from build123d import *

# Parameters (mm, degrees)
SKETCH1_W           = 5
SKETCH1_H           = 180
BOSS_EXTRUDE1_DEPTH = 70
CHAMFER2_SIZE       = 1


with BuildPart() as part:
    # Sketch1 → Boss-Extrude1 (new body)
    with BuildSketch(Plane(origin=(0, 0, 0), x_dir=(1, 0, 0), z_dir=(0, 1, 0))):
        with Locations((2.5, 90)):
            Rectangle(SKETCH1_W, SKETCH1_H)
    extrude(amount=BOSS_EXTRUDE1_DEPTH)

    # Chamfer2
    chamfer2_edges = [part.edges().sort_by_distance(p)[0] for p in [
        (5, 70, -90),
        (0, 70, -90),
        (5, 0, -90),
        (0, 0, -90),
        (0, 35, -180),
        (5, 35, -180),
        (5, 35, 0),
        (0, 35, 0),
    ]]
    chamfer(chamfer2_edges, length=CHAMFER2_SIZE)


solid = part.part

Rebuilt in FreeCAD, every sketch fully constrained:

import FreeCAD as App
import Part
import Sketcher
Q = App.Units.Quantity


def edges_at(feature, points):
    """Names of the edges that pass closest to the given points."""
    edges = feature.Shape.Edges
    near = lambda p: min(range(len(edges)), key=lambda i: edges[i].distToShape(Part.Vertex(*p))[0])
    return sorted({f"Edge{near(p) + 1}" for p in points})


def add_polygon(sketch, points):
    """Adds a closed chain of lines whose ends are joined by coincident constraints."""
    first, n = sketch.GeometryCount, len(points)
    for a, b in zip(points, points[1:] + points[:1]):
        sketch.addGeometry(Part.LineSegment(App.Vector(*a, 0), App.Vector(*b, 0)), False)
    for i in range(n):
        sketch.addConstraint(Sketcher.Constraint("Coincident", first + i, 2, first + (i + 1) % n, 1))

doc = App.newDocument("Part")
body = doc.addObject("PartDesign::Body", "Body")

# Sketch on XZ plane
sketch1 = doc.addObject("Sketcher::SketchObject", "Sketch")
body.addObject(sketch1)
sketch1.AttachmentSupport = (doc.XZ_Plane, [""])
sketch1.MapMode = "FlatFace"
add_polygon(sketch1, [(0, -180), (0, 0), (5, 0), (5, -180)])  # lines 0-3
sketch1.addConstraint([
    Sketcher.Constraint("Vertical", 0),
    Sketcher.Constraint("Horizontal", 1),
    Sketcher.Constraint("Vertical", 2),
    Sketcher.Constraint("Horizontal", 3),
    Sketcher.Constraint("Coincident", 0, 2, -1, 1),
    Sketcher.Constraint("DistanceX", 1, 1, 1, 2, Q("5 mm")),
    Sketcher.Constraint("DistanceY", 0, 1, 0, 2, Q("180 mm")),
])
pad1 = doc.addObject("PartDesign::Pad", "Pad")
body.addObject(pad1)
pad1.Profile = sketch1
pad1.Length = 70
pad1.Reversed = True
doc.recompute()

chamfer = doc.addObject("PartDesign::Chamfer", "Chamfer")
body.addObject(chamfer)
chamfer.Base = (pad1, edges_at(pad1, [
    (5, 70, -90),
    (0, 70, -90),
    (5, 0, -90),
    (0, 0, -90),
    (0, 35, -180),
    (5, 35, -180),
    (5, 35, 0),
    (0, 35, 0),
]))
chamfer.Size = 1

doc.recompute()
